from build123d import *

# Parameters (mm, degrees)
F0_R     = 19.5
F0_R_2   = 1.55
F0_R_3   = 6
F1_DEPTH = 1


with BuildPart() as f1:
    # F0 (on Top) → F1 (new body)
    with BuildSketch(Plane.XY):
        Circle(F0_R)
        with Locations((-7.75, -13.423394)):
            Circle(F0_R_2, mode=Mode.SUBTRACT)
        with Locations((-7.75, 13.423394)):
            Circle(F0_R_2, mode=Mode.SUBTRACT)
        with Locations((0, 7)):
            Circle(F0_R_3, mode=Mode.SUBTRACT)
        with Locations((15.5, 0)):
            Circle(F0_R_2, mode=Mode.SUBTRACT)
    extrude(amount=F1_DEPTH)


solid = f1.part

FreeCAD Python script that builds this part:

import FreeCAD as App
import Part
import Sketcher

V = App.Vector

doc = App.newDocument("Part")
body = doc.addObject("PartDesign::Body", "Body")

# Sketch on XY plane
sketch1 = body.newObject("Sketcher::SketchObject", "Sketch")
sketch1.AttachmentSupport = (doc.getObject("XY_Plane"), [""])
sketch1.MapMode = "FlatFace"
sketch1.addGeometry([
    Part.Circle(V(0, 0, 0), V(0, 0, 1), 19.5),  # 0
    Part.Circle(V(-7.8, -13.4, 0), V(0, 0, 1), 1.6),  # 1
    Part.Circle(V(15.5, 0, 0), V(0, 0, 1), 1.6),  # 2
    Part.Circle(V(0, 7, 0), V(0, 0, 1), 6),  # 3
    Part.Circle(V(-7.8, 13.4, 0), V(0, 0, 1), 1.6),  # 4
], False)
sketch1.addConstraint([
    Sketcher.Constraint("Coincident", 0, 3, -1, 1),
    Sketcher.Constraint("Equal", 1, 2),
    Sketcher.Constraint("Equal", 2, 4),
    Sketcher.Constraint("Symmetric", 1, 3, 4, 3, -1),
    Sketcher.Constraint("PointOnObject", 2, 3, -1),
    Sketcher.Constraint("PointOnObject", 3, 3, -2),
    Sketcher.Constraint("Diameter", 0, 39.0),
    Sketcher.Constraint("Diameter", 3, 12.0),
    Sketcher.Constraint("Diameter", 1, 3.1),
    Sketcher.Constraint("DistanceY", -1, 1, 3, 3, 7.0),
    Sketcher.Constraint("DistanceX", -1, 1, 2, 3, 15.5),
    Sketcher.Constraint("DistanceX", 1, 3, -1, 1, 7.75),
    Sketcher.Constraint("DistanceY", 1, 3, 4, 3, 26.846788),
])
pad1 = body.newObject("PartDesign::Pad", "Pad")
pad1.Profile = sketch1
pad1.Length = 1

doc.recompute()
